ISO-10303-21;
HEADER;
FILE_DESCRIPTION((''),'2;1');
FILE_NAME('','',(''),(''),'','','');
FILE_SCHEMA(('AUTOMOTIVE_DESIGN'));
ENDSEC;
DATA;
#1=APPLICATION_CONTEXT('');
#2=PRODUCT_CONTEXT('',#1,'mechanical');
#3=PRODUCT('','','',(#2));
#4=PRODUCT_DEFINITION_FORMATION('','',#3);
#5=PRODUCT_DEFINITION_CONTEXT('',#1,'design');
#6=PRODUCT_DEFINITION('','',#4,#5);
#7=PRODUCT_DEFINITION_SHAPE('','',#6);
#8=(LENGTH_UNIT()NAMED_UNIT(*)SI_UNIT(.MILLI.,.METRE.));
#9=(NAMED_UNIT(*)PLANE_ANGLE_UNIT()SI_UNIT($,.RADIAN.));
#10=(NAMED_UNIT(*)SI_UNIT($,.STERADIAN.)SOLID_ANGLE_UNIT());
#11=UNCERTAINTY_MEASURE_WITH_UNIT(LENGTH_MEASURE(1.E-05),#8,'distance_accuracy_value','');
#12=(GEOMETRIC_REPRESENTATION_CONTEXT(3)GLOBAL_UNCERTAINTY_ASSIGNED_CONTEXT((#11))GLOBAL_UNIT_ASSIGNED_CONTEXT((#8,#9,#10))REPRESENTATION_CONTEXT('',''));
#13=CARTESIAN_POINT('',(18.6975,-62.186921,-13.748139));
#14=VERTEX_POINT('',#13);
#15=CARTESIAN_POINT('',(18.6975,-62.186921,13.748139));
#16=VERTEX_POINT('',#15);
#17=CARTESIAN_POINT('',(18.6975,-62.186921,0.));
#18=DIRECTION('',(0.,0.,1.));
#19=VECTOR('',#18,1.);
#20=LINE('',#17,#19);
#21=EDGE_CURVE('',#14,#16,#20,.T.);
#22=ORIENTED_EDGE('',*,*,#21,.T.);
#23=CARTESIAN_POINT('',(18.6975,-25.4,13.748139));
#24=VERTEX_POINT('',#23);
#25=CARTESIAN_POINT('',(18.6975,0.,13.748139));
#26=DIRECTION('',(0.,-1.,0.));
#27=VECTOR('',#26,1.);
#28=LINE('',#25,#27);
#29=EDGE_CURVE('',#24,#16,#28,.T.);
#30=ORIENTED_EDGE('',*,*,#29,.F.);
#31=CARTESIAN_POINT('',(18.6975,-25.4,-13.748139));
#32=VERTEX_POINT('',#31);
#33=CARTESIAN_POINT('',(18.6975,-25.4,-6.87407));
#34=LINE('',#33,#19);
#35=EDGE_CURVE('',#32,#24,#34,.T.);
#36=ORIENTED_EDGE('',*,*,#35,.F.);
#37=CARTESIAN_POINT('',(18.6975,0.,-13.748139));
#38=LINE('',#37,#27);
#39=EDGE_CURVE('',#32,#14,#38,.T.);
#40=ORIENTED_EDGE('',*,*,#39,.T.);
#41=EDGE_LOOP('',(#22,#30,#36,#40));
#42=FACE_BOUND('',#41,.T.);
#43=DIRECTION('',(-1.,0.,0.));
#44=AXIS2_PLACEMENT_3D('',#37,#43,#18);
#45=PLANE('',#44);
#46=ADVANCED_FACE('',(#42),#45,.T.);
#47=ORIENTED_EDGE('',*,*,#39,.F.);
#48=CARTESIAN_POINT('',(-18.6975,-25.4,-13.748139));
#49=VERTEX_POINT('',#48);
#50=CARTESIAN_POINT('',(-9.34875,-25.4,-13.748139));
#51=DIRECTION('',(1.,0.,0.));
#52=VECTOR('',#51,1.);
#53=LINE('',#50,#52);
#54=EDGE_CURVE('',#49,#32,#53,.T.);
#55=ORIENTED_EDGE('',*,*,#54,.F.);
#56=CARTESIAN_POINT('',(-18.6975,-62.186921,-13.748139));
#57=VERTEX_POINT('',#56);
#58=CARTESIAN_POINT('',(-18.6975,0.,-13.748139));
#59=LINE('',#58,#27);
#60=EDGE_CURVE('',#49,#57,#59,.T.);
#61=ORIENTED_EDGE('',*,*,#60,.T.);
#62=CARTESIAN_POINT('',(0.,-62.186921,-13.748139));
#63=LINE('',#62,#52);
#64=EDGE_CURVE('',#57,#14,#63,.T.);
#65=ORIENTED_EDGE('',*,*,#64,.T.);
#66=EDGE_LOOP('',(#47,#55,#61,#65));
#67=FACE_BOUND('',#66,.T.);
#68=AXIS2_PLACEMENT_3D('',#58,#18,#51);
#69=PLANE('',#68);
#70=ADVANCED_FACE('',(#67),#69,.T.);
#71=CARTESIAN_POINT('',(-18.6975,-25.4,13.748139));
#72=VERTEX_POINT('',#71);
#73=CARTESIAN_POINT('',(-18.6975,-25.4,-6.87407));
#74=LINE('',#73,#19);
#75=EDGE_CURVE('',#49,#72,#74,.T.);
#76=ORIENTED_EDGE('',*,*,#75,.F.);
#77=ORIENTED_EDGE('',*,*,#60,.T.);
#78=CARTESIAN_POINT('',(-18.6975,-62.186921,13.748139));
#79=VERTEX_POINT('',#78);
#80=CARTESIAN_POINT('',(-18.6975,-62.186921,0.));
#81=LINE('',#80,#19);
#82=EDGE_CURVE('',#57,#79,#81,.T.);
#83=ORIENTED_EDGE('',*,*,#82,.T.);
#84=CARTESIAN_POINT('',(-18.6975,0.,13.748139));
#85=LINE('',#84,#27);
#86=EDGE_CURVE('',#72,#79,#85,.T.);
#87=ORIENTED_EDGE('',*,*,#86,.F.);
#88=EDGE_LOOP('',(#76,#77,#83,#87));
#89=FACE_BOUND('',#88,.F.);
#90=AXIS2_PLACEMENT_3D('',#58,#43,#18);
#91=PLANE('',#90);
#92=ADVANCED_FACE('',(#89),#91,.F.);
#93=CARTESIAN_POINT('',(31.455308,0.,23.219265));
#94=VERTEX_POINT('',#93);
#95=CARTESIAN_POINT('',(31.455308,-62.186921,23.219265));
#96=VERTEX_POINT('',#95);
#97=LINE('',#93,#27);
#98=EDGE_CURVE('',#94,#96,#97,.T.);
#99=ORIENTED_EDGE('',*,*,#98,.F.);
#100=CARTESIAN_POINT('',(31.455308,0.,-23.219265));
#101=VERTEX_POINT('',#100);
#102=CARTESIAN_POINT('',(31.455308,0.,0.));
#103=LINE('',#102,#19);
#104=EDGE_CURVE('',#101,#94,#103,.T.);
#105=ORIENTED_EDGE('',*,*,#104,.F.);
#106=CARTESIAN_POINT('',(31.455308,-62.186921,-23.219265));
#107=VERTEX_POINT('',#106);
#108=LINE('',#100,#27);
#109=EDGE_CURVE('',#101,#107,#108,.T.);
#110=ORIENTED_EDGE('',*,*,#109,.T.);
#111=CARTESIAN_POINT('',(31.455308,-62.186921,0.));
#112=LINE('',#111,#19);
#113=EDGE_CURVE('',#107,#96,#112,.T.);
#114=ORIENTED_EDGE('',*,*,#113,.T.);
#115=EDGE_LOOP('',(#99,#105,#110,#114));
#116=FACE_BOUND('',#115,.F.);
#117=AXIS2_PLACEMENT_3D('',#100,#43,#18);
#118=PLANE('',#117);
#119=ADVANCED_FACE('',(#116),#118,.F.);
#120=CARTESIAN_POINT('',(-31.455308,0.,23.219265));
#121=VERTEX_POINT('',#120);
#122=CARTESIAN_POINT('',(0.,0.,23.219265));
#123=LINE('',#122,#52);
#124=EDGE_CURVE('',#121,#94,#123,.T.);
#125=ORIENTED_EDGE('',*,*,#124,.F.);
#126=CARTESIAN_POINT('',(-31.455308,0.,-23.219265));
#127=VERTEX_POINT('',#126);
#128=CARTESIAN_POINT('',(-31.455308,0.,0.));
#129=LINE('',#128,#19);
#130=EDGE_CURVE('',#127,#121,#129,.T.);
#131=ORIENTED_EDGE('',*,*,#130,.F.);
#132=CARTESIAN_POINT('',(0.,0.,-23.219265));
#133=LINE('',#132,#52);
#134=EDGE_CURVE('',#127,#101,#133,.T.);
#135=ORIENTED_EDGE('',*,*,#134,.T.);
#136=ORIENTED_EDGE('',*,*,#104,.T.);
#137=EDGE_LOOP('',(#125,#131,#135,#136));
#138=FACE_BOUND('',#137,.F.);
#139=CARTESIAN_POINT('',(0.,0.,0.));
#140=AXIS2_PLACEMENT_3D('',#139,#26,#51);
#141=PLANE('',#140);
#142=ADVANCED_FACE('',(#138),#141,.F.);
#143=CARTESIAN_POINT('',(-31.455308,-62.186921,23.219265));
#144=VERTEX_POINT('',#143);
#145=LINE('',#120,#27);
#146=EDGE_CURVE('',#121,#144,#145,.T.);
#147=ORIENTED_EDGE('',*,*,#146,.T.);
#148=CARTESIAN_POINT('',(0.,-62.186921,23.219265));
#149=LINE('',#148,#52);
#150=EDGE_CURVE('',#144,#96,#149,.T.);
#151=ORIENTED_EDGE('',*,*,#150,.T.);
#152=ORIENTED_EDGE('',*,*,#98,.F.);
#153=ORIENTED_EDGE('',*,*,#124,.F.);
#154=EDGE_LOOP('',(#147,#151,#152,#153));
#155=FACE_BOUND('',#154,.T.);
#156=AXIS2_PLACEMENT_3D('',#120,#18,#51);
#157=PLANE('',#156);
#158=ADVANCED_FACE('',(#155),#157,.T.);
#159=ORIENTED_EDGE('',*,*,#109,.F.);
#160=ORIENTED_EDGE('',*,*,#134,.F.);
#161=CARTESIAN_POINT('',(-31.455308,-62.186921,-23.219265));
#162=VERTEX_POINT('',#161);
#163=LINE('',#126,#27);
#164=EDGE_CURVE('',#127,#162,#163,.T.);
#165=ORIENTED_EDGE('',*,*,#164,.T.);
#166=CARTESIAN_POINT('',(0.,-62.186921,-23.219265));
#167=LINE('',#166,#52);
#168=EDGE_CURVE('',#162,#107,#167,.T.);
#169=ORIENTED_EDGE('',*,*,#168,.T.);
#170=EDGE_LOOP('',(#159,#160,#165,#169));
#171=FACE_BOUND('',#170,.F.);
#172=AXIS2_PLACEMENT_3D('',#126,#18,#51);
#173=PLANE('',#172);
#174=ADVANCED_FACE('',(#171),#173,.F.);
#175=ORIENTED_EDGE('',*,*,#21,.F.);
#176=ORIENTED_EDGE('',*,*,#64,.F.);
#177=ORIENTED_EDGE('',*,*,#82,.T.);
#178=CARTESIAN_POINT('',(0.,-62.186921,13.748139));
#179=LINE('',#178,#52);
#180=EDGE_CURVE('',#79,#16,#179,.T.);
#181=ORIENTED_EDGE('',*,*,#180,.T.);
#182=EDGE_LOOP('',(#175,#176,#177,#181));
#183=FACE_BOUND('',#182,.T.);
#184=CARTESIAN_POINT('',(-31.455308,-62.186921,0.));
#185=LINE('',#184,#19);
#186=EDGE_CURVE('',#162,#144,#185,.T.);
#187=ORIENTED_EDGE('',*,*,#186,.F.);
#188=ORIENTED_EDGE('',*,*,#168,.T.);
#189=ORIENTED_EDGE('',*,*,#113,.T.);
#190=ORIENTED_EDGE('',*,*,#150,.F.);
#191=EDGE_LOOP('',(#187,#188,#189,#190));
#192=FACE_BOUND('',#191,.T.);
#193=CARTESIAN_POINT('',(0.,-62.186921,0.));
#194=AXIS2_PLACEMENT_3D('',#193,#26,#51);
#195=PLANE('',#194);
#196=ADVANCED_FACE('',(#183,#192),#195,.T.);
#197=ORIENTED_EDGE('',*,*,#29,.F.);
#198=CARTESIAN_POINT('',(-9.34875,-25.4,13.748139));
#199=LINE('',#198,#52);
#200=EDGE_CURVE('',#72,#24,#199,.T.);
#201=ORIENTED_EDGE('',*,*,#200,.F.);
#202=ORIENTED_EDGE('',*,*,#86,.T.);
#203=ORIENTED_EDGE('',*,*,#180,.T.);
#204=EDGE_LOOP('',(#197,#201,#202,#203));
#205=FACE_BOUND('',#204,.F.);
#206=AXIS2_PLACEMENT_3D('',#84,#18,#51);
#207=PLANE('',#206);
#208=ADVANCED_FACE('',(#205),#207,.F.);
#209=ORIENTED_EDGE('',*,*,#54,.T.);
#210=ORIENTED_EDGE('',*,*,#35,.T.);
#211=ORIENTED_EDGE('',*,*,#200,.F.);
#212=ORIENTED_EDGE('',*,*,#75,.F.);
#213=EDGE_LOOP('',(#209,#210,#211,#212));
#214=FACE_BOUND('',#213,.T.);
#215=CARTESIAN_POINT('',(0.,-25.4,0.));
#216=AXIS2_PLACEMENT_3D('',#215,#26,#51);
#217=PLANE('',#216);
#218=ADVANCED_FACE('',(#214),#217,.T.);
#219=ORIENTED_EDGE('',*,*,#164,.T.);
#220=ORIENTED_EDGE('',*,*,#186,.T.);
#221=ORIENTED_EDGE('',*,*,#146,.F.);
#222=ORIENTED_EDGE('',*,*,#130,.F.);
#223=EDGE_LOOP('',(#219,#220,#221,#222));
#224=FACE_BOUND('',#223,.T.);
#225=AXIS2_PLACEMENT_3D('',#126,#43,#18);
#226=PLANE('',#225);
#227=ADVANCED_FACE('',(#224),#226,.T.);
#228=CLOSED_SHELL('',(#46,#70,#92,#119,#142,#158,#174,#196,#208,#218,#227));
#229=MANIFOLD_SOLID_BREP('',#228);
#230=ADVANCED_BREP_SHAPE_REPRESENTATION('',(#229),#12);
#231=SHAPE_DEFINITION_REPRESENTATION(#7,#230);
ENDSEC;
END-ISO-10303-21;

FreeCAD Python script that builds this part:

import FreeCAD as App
import Part
import Sketcher

V = App.Vector
Q = App.Units.Quantity

doc = App.newDocument("Part")
body = doc.addObject("PartDesign::Body", "Body")

sketch1 = body.newObject("Sketcher::SketchObject", "Sketch")
sketch1.AttachmentSupport = (doc.getObject("XZ_Plane"), [""])
sketch1.MapMode = "FlatFace"
sketch1.addGeometry([
    Part.LineSegment(V(-31.455308, 23.219265, 0), V(-31.455308, -23.219265, 0)),
    Part.LineSegment(V(-31.455308, -23.219265, 0), V(31.455308, -23.219265, 0)),
    Part.LineSegment(V(31.455308, -23.219265, 0), V(31.455308, 23.219265, 0)),
    Part.LineSegment(V(31.455308, 23.219265, 0), V(-31.455308, 23.219265, 0)),
    Part.LineSegment(V(18.6975, -13.748139, 0), V(-18.6975, -13.748139, 0)),
    Part.LineSegment(V(-18.6975, -13.748139, 0), V(-18.6975, 13.748139, 0)),
    Part.LineSegment(V(-18.6975, 13.748139, 0), V(18.6975, 13.748139, 0)),
    Part.LineSegment(V(18.6975, 13.748139, 0), V(18.6975, -13.748139, 0)),
], False)
sketch1.addConstraint([
    Sketcher.Constraint("Coincident", 0, 2, 1, 1),
    Sketcher.Constraint("Coincident", 1, 2, 2, 1),
    Sketcher.Constraint("Coincident", 2, 2, 3, 1),
    Sketcher.Constraint("Coincident", 3, 2, 0, 1),
    Sketcher.Constraint("Coincident", 4, 2, 5, 1),
    Sketcher.Constraint("Coincident", 5, 2, 6, 1),
    Sketcher.Constraint("Coincident", 6, 2, 7, 1),
    Sketcher.Constraint("Coincident", 7, 2, 4, 1),
    Sketcher.Constraint("Vertical", 0),
    Sketcher.Constraint("Horizontal", 1),
    Sketcher.Constraint("Vertical", 2),
    Sketcher.Constraint("Horizontal", 3),
    Sketcher.Constraint("Horizontal", 4),
    Sketcher.Constraint("Vertical", 5),
    Sketcher.Constraint("Horizontal", 6),
    Sketcher.Constraint("Vertical", 7),
    Sketcher.Constraint("Symmetric", 0, 2, 2, 2, -1, 1),
    Sketcher.Constraint("Symmetric", 4, 2, 6, 2, -1, 1),
    Sketcher.Constraint("DistanceX", 4, 2, 4, 1, 37.395),
    Sketcher.Constraint("DistanceY", 0, 2, 0, 1, 46.43853),
    Sketcher.Constraint("DistanceY", 5, 1, 5, 2, 27.496278),
    Sketcher.Constraint("DistanceX", 1, 1, 1, 2, 62.910616),
])
pad1 = body.newObject("PartDesign::Pad", "Pad")
pad1.Profile = sketch1
pad1.Length = 62.186921

sketch2 = body.newObject("Sketcher::SketchObject", "Sketch001")
sketch2.AttachmentSupport = (doc.getObject("XZ_Plane"), [""])
sketch2.MapMode = "FlatFace"
sketch2.addGeometry([
    Part.LineSegment(V(-18.833032, 13.810305, 0), V(-18.833032, -13.810305, 0)),
    Part.LineSegment(V(-18.833032, -13.810305, 0), V(18.833032, -13.810305, 0)),
    Part.LineSegment(V(18.833032, -13.810305, 0), V(18.833032, 13.810305, 0)),
    Part.LineSegment(V(18.833032, 13.810305, 0), V(-18.833032, 13.810305, 0)),
], False)
sketch2.addConstraint([
    Sketcher.Constraint("Coincident", 0, 2, 1, 1),
    Sketcher.Constraint("Coincident", 1, 2, 2, 1),
    Sketcher.Constraint("Coincident", 2, 2, 3, 1),
    Sketcher.Constraint("Coincident", 3, 2, 0, 1),
    Sketcher.Constraint("Vertical", 0),
    Sketcher.Constraint("Horizontal", 1),
    Sketcher.Constraint("Vertical", 2),
    Sketcher.Constraint("Horizontal", 3),
    Sketcher.Constraint("Symmetric", 0, 2, 2, 2, -1, 1),
    Sketcher.Constraint("DistanceY", 0, 2, 0, 1, 27.62061),
    Sketcher.Constraint("DistanceX", 1, 1, 1, 2, 37.666064),
])
pad2 = body.newObject("PartDesign::Pad", "Pad001")
pad2.Profile = sketch2
pad2.Length = Q("1 in")

doc.recompute()
